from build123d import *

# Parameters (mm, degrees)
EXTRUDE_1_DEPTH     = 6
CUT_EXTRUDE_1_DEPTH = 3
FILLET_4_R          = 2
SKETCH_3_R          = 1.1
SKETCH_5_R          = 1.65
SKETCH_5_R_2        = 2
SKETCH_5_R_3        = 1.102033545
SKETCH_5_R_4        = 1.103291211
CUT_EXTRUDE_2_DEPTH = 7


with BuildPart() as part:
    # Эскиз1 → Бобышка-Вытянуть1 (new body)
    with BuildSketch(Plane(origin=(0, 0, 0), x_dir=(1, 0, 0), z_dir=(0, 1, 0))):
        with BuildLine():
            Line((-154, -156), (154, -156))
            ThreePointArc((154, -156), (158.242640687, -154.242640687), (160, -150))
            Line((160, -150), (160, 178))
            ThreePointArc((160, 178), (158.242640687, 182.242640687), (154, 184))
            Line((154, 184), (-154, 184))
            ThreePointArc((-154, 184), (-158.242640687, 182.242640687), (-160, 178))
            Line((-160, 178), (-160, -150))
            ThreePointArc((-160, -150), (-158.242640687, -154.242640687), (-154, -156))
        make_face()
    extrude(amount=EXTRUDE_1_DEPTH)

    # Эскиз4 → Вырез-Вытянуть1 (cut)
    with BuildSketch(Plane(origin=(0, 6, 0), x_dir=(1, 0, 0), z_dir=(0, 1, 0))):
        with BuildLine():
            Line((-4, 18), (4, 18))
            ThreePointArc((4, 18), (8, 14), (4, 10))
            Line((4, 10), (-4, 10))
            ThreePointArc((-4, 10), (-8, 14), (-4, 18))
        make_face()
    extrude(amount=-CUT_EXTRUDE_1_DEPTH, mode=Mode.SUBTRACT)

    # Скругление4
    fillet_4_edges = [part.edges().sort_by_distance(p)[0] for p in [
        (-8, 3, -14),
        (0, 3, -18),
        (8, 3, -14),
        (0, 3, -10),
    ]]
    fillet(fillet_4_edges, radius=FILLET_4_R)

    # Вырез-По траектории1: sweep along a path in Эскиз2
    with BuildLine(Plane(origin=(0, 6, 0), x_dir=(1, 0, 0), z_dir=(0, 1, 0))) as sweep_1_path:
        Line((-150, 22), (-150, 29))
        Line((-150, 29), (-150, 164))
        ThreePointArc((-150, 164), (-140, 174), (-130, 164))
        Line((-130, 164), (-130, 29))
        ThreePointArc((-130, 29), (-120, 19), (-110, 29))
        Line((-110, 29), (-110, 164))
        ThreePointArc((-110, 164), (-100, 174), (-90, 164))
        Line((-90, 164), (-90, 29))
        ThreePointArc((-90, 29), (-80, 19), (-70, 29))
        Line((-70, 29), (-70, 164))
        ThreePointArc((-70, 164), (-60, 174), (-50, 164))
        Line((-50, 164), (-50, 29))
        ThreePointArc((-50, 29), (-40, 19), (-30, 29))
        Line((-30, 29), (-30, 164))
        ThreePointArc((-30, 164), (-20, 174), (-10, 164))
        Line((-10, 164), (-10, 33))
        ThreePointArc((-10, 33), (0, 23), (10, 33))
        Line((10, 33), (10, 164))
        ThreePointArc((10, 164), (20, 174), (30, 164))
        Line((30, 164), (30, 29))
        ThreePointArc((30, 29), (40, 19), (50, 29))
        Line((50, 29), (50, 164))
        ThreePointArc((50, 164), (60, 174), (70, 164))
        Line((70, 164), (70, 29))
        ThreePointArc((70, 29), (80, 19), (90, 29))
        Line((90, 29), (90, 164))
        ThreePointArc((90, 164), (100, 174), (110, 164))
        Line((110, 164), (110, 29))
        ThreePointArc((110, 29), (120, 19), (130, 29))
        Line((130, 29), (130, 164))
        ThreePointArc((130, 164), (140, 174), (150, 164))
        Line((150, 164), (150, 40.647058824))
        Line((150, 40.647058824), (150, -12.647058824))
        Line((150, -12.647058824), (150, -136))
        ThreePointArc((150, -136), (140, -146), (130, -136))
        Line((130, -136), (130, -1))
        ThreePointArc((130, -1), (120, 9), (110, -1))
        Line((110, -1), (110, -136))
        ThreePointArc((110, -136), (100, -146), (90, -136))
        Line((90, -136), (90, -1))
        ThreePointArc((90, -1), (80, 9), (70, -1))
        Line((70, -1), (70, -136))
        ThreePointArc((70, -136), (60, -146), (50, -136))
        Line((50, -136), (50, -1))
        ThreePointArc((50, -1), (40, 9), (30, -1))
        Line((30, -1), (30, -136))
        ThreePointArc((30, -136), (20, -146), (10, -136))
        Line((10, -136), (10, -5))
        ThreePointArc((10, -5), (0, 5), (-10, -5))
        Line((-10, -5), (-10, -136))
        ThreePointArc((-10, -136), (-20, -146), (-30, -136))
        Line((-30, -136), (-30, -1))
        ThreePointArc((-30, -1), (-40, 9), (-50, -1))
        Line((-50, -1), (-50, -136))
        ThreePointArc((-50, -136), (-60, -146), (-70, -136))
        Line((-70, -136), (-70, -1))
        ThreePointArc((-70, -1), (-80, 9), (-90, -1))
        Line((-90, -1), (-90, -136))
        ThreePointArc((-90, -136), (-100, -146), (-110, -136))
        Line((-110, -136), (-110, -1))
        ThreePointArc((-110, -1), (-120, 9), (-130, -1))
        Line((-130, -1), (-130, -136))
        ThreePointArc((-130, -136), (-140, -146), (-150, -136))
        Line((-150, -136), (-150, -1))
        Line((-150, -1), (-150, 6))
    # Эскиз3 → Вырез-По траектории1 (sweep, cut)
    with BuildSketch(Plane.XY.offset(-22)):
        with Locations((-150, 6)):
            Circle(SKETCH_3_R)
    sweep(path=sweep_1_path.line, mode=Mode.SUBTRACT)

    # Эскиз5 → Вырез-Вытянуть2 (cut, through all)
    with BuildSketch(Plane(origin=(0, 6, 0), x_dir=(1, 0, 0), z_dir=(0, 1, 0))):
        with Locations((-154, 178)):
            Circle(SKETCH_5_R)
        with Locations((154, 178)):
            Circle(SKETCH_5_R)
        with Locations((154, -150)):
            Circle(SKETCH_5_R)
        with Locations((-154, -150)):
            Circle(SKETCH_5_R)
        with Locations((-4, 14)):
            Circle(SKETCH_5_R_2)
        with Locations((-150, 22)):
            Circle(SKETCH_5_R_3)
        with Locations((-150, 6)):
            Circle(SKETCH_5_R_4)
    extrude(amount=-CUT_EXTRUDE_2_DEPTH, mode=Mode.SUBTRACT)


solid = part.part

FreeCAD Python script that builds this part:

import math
import FreeCAD as App
import Part
import Sketcher
from FreeCAD import Vector


def edges_at(feature, points):
    """Names of the edges that pass closest to the given points."""
    edges = feature.Shape.Edges
    near = lambda p: min(range(len(edges)), key=lambda i: edges[i].distToShape(Part.Vertex(*p))[0])
    return sorted({f"Edge{near(p) + 1}" for p in points})

doc = App.newDocument("Part")
body = doc.addObject("PartDesign::Body", "Body")

# Sketch on XZ plane
sketch1 = body.newObject("Sketcher::SketchObject", "Sketch")
sketch1.AttachmentSupport = (doc.getObject("XZ_Plane"), [""])
sketch1.MapMode = "FlatFace"
sketch1.addGeometry(Part.LineSegment(Vector(-154, 156, 0), Vector(154, 156, 0)), False)
sketch1.addGeometry(Part.ArcOfCircle(Part.Circle(Vector(154, 150, 0), Vector(0, 0, 1), 6), math.radians(0), math.radians(90)), False)
sketch1.addGeometry(Part.LineSegment(Vector(160, 150, 0), Vector(160, -178, 0)), False)
sketch1.addGeometry(Part.ArcOfCircle(Part.Circle(Vector(154, -178, 0), Vector(0, 0, 1), 6), math.radians(-90), math.radians(0)), False)
sketch1.addGeometry(Part.LineSegment(Vector(154, -184, 0), Vector(-154, -184, 0)), False)
sketch1.addGeometry(Part.ArcOfCircle(Part.Circle(Vector(-154, -178, 0), Vector(0, 0, 1), 6), math.radians(180), math.radians(270)), False)
sketch1.addGeometry(Part.LineSegment(Vector(-160, -178, 0), Vector(-160, 150, 0)), False)
sketch1.addGeometry(Part.ArcOfCircle(Part.Circle(Vector(-154, 150, 0), Vector(0, 0, 1), 6), math.radians(90), math.radians(180)), False)
sketch1.addConstraint(Sketcher.Constraint("Tangent", 0, 2, 1, 2))
sketch1.addConstraint(Sketcher.Constraint("Tangent", 1, 1, 2, 1))
sketch1.addConstraint(Sketcher.Constraint("Tangent", 2, 2, 3, 2))
sketch1.addConstraint(Sketcher.Constraint("Tangent", 3, 1, 4, 1))
sketch1.addConstraint(Sketcher.Constraint("Tangent", 4, 2, 5, 2))
sketch1.addConstraint(Sketcher.Constraint("Tangent", 5, 1, 6, 1))
sketch1.addConstraint(Sketcher.Constraint("Tangent", 6, 2, 7, 2))
sketch1.addConstraint(Sketcher.Constraint("Tangent", 7, 1, 0, 1))
sketch1.addConstraint(Sketcher.Constraint("Horizontal", 0))
sketch1.addConstraint(Sketcher.Constraint("Vertical", 2))
sketch1.addConstraint(Sketcher.Constraint("Horizontal", 4))
sketch1.addConstraint(Sketcher.Constraint("Vertical", 6))
sketch1.addConstraint(Sketcher.Constraint("Equal", 1, 3))
sketch1.addConstraint(Sketcher.Constraint("Equal", 3, 5))
sketch1.addConstraint(Sketcher.Constraint("Equal", 5, 7))
sketch1.addConstraint(Sketcher.Constraint("Radius", 1, 6.0))
sketch1.addConstraint(Sketcher.Constraint("DistanceX", 0, 1, 0, 2, 308.0))
sketch1.addConstraint(Sketcher.Constraint("DistanceY", 2, 2, 2, 1, 328.0))
sketch1.addConstraint(Sketcher.Constraint("DistanceX", -1, 1, 1, 3, 154.0))
sketch1.addConstraint(Sketcher.Constraint("DistanceY", -1, 1, 1, 3, 150.0))
pad1 = body.newObject("PartDesign::Pad", "Pad")
pad1.Profile = sketch1
pad1.Length = 6
pad1.Reversed = True

# Sketch on XZ plane
sketch2 = body.newObject("Sketcher::SketchObject", "Sketch001")
sketch2.AttachmentSupport = (doc.getObject("XZ_Plane"), [""])
sketch2.MapMode = "FlatFace"
sketch2.AttachmentOffset = App.Placement(Vector(0, 0, -6), App.Rotation())
sketch2.addGeometry(Part.LineSegment(Vector(4, -18, 0), Vector(-4, -18, 0)), False)
sketch2.addGeometry(Part.ArcOfCircle(Part.Circle(Vector(-4, -14, 0), Vector(0, 0, 1), 4), math.radians(90), math.radians(270)), False)
sketch2.addGeometry(Part.LineSegment(Vector(-4, -10, 0), Vector(4, -10, 0)), False)
sketch2.addGeometry(Part.ArcOfCircle(Part.Circle(Vector(4, -14, 0), Vector(0, 0, 1), 4), math.radians(-90), math.radians(90)), False)
sketch2.addConstraint(Sketcher.Constraint("Tangent", 0, 2, 1, 2))
sketch2.addConstraint(Sketcher.Constraint("Tangent", 1, 1, 2, 1))
sketch2.addConstraint(Sketcher.Constraint("Tangent", 2, 2, 3, 2))
sketch2.addConstraint(Sketcher.Constraint("Tangent", 3, 1, 0, 1))
sketch2.addConstraint(Sketcher.Constraint("Horizontal", 0))
sketch2.addConstraint(Sketcher.Constraint("Horizontal", 2))
sketch2.addConstraint(Sketcher.Constraint("Radius", 1, 4.0))
sketch2.addConstraint(Sketcher.Constraint("DistanceX", 0, 2, 0, 1, 8.0))
sketch2.addConstraint(Sketcher.Constraint("DistanceX", 1, 3, -1, 1, 4.0))
sketch2.addConstraint(Sketcher.Constraint("DistanceY", 1, 3, -1, 1, 14.0))
pocket1 = body.newObject("PartDesign::Pocket", "Pocket")
pocket1.Profile = sketch2
pocket1.Length = 3
pocket1.Reversed = True
doc.recompute()

fillet = body.newObject("PartDesign::Fillet", "Fillet")
fillet.Base = (pocket1, edges_at(pocket1, [
    (-8, 3, -14),
    (0, 3, -18),
    (8, 3, -14),
    (0, 3, -10),
]))
fillet.Radius = 2

# Sketch on XY plane
sketch3 = body.newObject("Sketcher::SketchObject", "Sketch002")
sketch3.AttachmentSupport = (doc.getObject("XY_Plane"), [""])
sketch3.MapMode = "FlatFace"
sketch3.AttachmentOffset = App.Placement(Vector(0, 0, -22), App.Rotation())
sketch3.addGeometry(Part.Circle(Vector(-150, 6, 0), Vector(0, 0, 1), 1.1), False)
sketch3.addConstraint(Sketcher.Constraint("Diameter", 0, 2.2))
sketch3.addConstraint(Sketcher.Constraint("DistanceX", 0, 3, -1, 1, 150.0))
sketch3.addConstraint(Sketcher.Constraint("DistanceY", -1, 1, 0, 3, 6.0))

# Sketch on XZ plane
sketch4 = body.newObject("Sketcher::SketchObject", "Sketch003")
sketch4.AttachmentSupport = (doc.getObject("XZ_Plane"), [""])
sketch4.MapMode = "FlatFace"
sketch4.AttachmentOffset = App.Placement(Vector(0, 0, -6), App.Rotation())
sketch4.addGeometry(Part.LineSegment(Vector(-150, -22, 0), Vector(-150, -164, 0)), False)
sketch4.addGeometry(Part.ArcOfCircle(Part.Circle(Vector(-140, -164, 0), Vector(0, 0, 1), 10), math.radians(180), math.radians(360)), False)
sketch4.addGeometry(Part.LineSegment(Vector(-130, -164, 0), Vector(-130, -29, 0)), False)
sketch4.addGeometry(Part.ArcOfCircle(Part.Circle(Vector(-120, -29, 0), Vector(0, 0, 1), 10), math.radians(0), math.radians(180)), False)
sketch4.addGeometry(Part.LineSegment(Vector(-110, -29, 0), Vector(-110, -164, 0)), False)
sketch4.addGeometry(Part.ArcOfCircle(Part.Circle(Vector(-100, -164, 0), Vector(0, 0, 1), 10), math.radians(180), math.radians(360)), False)
sketch4.addGeometry(Part.LineSegment(Vector(-90, -164, 0), Vector(-90, -29, 0)), False)
sketch4.addGeometry(Part.ArcOfCircle(Part.Circle(Vector(-80, -29, 0), Vector(0, 0, 1), 10), math.radians(0), math.radians(180)), False)
sketch4.addGeometry(Part.LineSegment(Vector(-70, -29, 0), Vector(-70, -164, 0)), False)
sketch4.addGeometry(Part.ArcOfCircle(Part.Circle(Vector(-60, -164, 0), Vector(0, 0, 1), 10), math.radians(180), math.radians(360)), False)
sketch4.addGeometry(Part.LineSegment(Vector(-50, -164, 0), Vector(-50, -29, 0)), False)
sketch4.addGeometry(Part.ArcOfCircle(Part.Circle(Vector(-40, -29, 0), Vector(0, 0, 1), 10), math.radians(0), math.radians(180)), False)
sketch4.addGeometry(Part.LineSegment(Vector(-30, -29, 0), Vector(-30, -164, 0)), False)
sketch4.addGeometry(Part.ArcOfCircle(Part.Circle(Vector(-20, -164, 0), Vector(0, 0, 1), 10), math.radians(180), math.radians(360)), False)
sketch4.addGeometry(Part.LineSegment(Vector(-10, -164, 0), Vector(-10, -33, 0)), False)
sketch4.addGeometry(Part.ArcOfCircle(Part.Circle(Vector(0, -33, 0), Vector(0, 0, 1), 10), math.radians(0), math.radians(180)), False)
sketch4.addGeometry(Part.LineSegment(Vector(10, -33, 0), Vector(10, -164, 0)), False)
sketch4.addGeometry(Part.ArcOfCircle(Part.Circle(Vector(20, -164, 0), Vector(0, 0, 1), 10), math.radians(180), math.radians(360)), False)
sketch4.addGeometry(Part.LineSegment(Vector(30, -164, 0), Vector(30, -29, 0)), False)
sketch4.addGeometry(Part.ArcOfCircle(Part.Circle(Vector(40, -29, 0), Vector(0, 0, 1), 10), math.radians(0), math.radians(180)), False)
sketch4.addGeometry(Part.LineSegment(Vector(50, -29, 0), Vector(50, -164, 0)), False)
sketch4.addGeometry(Part.ArcOfCircle(Part.Circle(Vector(60, -164, 0), Vector(0, 0, 1), 10), math.radians(180), math.radians(360)), False)
sketch4.addGeometry(Part.LineSegment(Vector(70, -164, 0), Vector(70, -29, 0)), False)
sketch4.addGeometry(Part.ArcOfCircle(Part.Circle(Vector(80, -29, 0), Vector(0, 0, 1), 10), math.radians(0), math.radians(180)), False)
sketch4.addGeometry(Part.LineSegment(Vector(90, -29, 0), Vector(90, -164, 0)), False)
sketch4.addGeometry(Part.ArcOfCircle(Part.Circle(Vector(100, -164, 0), Vector(0, 0, 1), 10), math.radians(180), math.radians(360)), False)
sketch4.addGeometry(Part.LineSegment(Vector(110, -164, 0), Vector(110, -29, 0)), False)
sketch4.addGeometry(Part.ArcOfCircle(Part.Circle(Vector(120, -29, 0), Vector(0, 0, 1), 10), math.radians(0), math.radians(180)), False)
sketch4.addGeometry(Part.LineSegment(Vector(130, -29, 0), Vector(130, -164, 0)), False)
sketch4.addGeometry(Part.ArcOfCircle(Part.Circle(Vector(140, -164, 0), Vector(0, 0, 1), 10), math.radians(180), math.radians(360)), False)
sketch4.addGeometry(Part.LineSegment(Vector(150, -164, 0), Vector(150, 136, 0)), False)
sketch4.addGeometry(Part.ArcOfCircle(Part.Circle(Vector(140, 136, 0), Vector(0, 0, 1), 10), math.radians(0), math.radians(180)), False)
sketch4.addGeometry(Part.LineSegment(Vector(130, 136, 0), Vector(130, 1, 0)), False)
sketch4.addGeometry(Part.ArcOfCircle(Part.Circle(Vector(120, 1, 0), Vector(0, 0, 1), 10), math.radians(180), math.radians(360)), False)
sketch4.addGeometry(Part.LineSegment(Vector(110, 1, 0), Vector(110, 136, 0)), False)
sketch4.addGeometry(Part.ArcOfCircle(Part.Circle(Vector(100, 136, 0), Vector(0, 0, 1), 10), math.radians(0), math.radians(180)), False)
sketch4.addGeometry(Part.LineSegment(Vector(90, 136, 0), Vector(90, 1, 0)), False)
sketch4.addGeometry(Part.ArcOfCircle(Part.Circle(Vector(80, 1, 0), Vector(0, 0, 1), 10), math.radians(180), math.radians(360)), False)
sketch4.addGeometry(Part.LineSegment(Vector(70, 1, 0), Vector(70, 136, 0)), False)
sketch4.addGeometry(Part.ArcOfCircle(Part.Circle(Vector(60, 136, 0), Vector(0, 0, 1), 10), math.radians(0), math.radians(180)), False)
sketch4.addGeometry(Part.LineSegment(Vector(50, 136, 0), Vector(50, 1, 0)), False)
sketch4.addGeometry(Part.ArcOfCircle(Part.Circle(Vector(40, 1, 0), Vector(0, 0, 1), 10), math.radians(180), math.radians(360)), False)
sketch4.addGeometry(Part.LineSegment(Vector(30, 1, 0), Vector(30, 136, 0)), False)
sketch4.addGeometry(Part.ArcOfCircle(Part.Circle(Vector(20, 136, 0), Vector(0, 0, 1), 10), math.radians(0), math.radians(180)), False)
sketch4.addGeometry(Part.LineSegment(Vector(10, 136, 0), Vector(10, 5, 0)), False)
sketch4.addGeometry(Part.ArcOfCircle(Part.Circle(Vector(0, 5, 0), Vector(0, 0, 1), 10), math.radians(180), math.radians(360)), False)
sketch4.addGeometry(Part.LineSegment(Vector(-10, 5, 0), Vector(-10, 136, 0)), False)
sketch4.addGeometry(Part.ArcOfCircle(Part.Circle(Vector(-20, 136, 0), Vector(0, 0, 1), 10), math.radians(0), math.radians(180)), False)
sketch4.addGeometry(Part.LineSegment(Vector(-30, 136, 0), Vector(-30, 1, 0)), False)
sketch4.addGeometry(Part.ArcOfCircle(Part.Circle(Vector(-40, 1, 0), Vector(0, 0, 1), 10), math.radians(180), math.radians(360)), False)
sketch4.addGeometry(Part.LineSegment(Vector(-50, 1, 0), Vector(-50, 136, 0)), False)
sketch4.addGeometry(Part.ArcOfCircle(Part.Circle(Vector(-60, 136, 0), Vector(0, 0, 1), 10), math.radians(0), math.radians(180)), False)
sketch4.addGeometry(Part.LineSegment(Vector(-70, 136, 0), Vector(-70, 1, 0)), False)
sketch4.addGeometry(Part.ArcOfCircle(Part.Circle(Vector(-80, 1, 0), Vector(0, 0, 1), 10), math.radians(180), math.radians(360)), False)
sketch4.addGeometry(Part.LineSegment(Vector(-90, 1, 0), Vector(-90, 136, 0)), False)
sketch4.addGeometry(Part.ArcOfCircle(Part.Circle(Vector(-100, 136, 0), Vector(0, 0, 1), 10), math.radians(0), math.radians(180)), False)
sketch4.addGeometry(Part.LineSegment(Vector(-110, 136, 0), Vector(-110, 1, 0)), False)
sketch4.addGeometry(Part.ArcOfCircle(Part.Circle(Vector(-120, 1, 0), Vector(0, 0, 1), 10), math.radians(180), math.radians(360)), False)
sketch4.addGeometry(Part.LineSegment(Vector(-130, 1, 0), Vector(-130, 136, 0)), False)
sketch4.addGeometry(Part.ArcOfCircle(Part.Circle(Vector(-140, 136, 0), Vector(0, 0, 1), 10), math.radians(0), math.radians(180)), False)
sketch4.addGeometry(Part.LineSegment(Vector(-150, 136, 0), Vector(-150, -6, 0)), False)
sketch4.addConstraint(Sketcher.Constraint("Tangent", 0, 2, 1, 1))
sketch4.addConstraint(Sketcher.Constraint("Tangent", 1, 2, 2, 1))
sketch4.addConstraint(Sketcher.Constraint("Tangent", 2, 2, 3, 2))
sketch4.addConstraint(Sketcher.Constraint("Tangent", 3, 1, 4, 1))
sketch4.addConstraint(Sketcher.Constraint("Tangent", 4, 2, 5, 1))
sketch4.addConstraint(Sketcher.Constraint("Tangent", 5, 2, 6, 1))
sketch4.addConstraint(Sketcher.Constraint("Tangent", 6, 2, 7, 2))
sketch4.addConstraint(Sketcher.Constraint("Tangent", 7, 1, 8, 1))
sketch4.addConstraint(Sketcher.Constraint("Tangent", 8, 2, 9, 1))
sketch4.addConstraint(Sketcher.Constraint("Tangent", 9, 2, 10, 1))
sketch4.addConstraint(Sketcher.Constraint("Tangent", 10, 2, 11, 2))
sketch4.addConstraint(Sketcher.Constraint("Tangent", 11, 1, 12, 1))
sketch4.addConstraint(Sketcher.Constraint("Tangent", 12, 2, 13, 1))
sketch4.addConstraint(Sketcher.Constraint("Tangent", 13, 2, 14, 1))
sketch4.addConstraint(Sketcher.Constraint("Tangent", 14, 2, 15, 2))
sketch4.addConstraint(Sketcher.Constraint("Tangent", 15, 1, 16, 1))
sketch4.addConstraint(Sketcher.Constraint("Tangent", 16, 2, 17, 1))
sketch4.addConstraint(Sketcher.Constraint("Tangent", 17, 2, 18, 1))
sketch4.addConstraint(Sketcher.Constraint("Tangent", 18, 2, 19, 2))
sketch4.addConstraint(Sketcher.Constraint("Tangent", 19, 1, 20, 1))
sketch4.addConstraint(Sketcher.Constraint("Tangent", 20, 2, 21, 1))
sketch4.addConstraint(Sketcher.Constraint("Tangent", 21, 2, 22, 1))
sketch4.addConstraint(Sketcher.Constraint("Tangent", 22, 2, 23, 2))
sketch4.addConstraint(Sketcher.Constraint("Tangent", 23, 1, 24, 1))
sketch4.addConstraint(Sketcher.Constraint("Tangent", 24, 2, 25, 1))
sketch4.addConstraint(Sketcher.Constraint("Tangent", 25, 2, 26, 1))
sketch4.addConstraint(Sketcher.Constraint("Tangent", 26, 2, 27, 2))
sketch4.addConstraint(Sketcher.Constraint("Tangent", 27, 1, 28, 1))
sketch4.addConstraint(Sketcher.Constraint("Tangent", 28, 2, 29, 1))
sketch4.addConstraint(Sketcher.Constraint("Tangent", 29, 2, 30, 1))
sketch4.addConstraint(Sketcher.Constraint("Tangent", 30, 2, 31, 1))
sketch4.addConstraint(Sketcher.Constraint("Tangent", 31, 2, 32, 1))
sketch4.addConstraint(Sketcher.Constraint("Tangent", 32, 2, 33, 2))
sketch4.addConstraint(Sketcher.Constraint("Tangent", 33, 1, 34, 1))
sketch4.addConstraint(Sketcher.Constraint("Tangent", 34, 2, 35, 1))
sketch4.addConstraint(Sketcher.Constraint("Tangent", 35, 2, 36, 1))
sketch4.addConstraint(Sketcher.Constraint("Tangent", 36, 2, 37, 2))
sketch4.addConstraint(Sketcher.Constraint("Tangent", 37, 1, 38, 1))
sketch4.addConstraint(Sketcher.Constraint("Tangent", 38, 2, 39, 1))
sketch4.addConstraint(Sketcher.Constraint("Tangent", 39, 2, 40, 1))
sketch4.addConstraint(Sketcher.Constraint("Tangent", 40, 2, 41, 2))
sketch4.addConstraint(Sketcher.Constraint("Tangent", 41, 1, 42, 1))
sketch4.addConstraint(Sketcher.Constraint("Tangent", 42, 2, 43, 1))
sketch4.addConstraint(Sketcher.Constraint("Tangent", 43, 2, 44, 1))
sketch4.addConstraint(Sketcher.Constraint("Tangent", 44, 2, 45, 2))
sketch4.addConstraint(Sketcher.Constraint("Tangent", 45, 1, 46, 1))
sketch4.addConstraint(Sketcher.Constraint("Tangent", 46, 2, 47, 1))
sketch4.addConstraint(Sketcher.Constraint("Tangent", 47, 2, 48, 1))
sketch4.addConstraint(Sketcher.Constraint("Tangent", 48, 2, 49, 2))
sketch4.addConstraint(Sketcher.Constraint("Tangent", 49, 1, 50, 1))
sketch4.addConstraint(Sketcher.Constraint("Tangent", 50, 2, 51, 1))
sketch4.addConstraint(Sketcher.Constraint("Tangent", 51, 2, 52, 1))
sketch4.addConstraint(Sketcher.Constraint("Tangent", 52, 2, 53, 2))
sketch4.addConstraint(Sketcher.Constraint("Tangent", 53, 1, 54, 1))
sketch4.addConstraint(Sketcher.Constraint("Tangent", 54, 2, 55, 1))
sketch4.addConstraint(Sketcher.Constraint("Tangent", 55, 2, 56, 1))
sketch4.addConstraint(Sketcher.Constraint("Tangent", 56, 2, 57, 2))
sketch4.addConstraint(Sketcher.Constraint("Tangent", 57, 1, 58, 1))
sketch4.addConstraint(Sketcher.Constraint("Tangent", 58, 2, 59, 1))
sketch4.addConstraint(Sketcher.Constraint("Tangent", 59, 2, 60, 1))
sketch4.addConstraint(Sketcher.Constraint("Vertical", 0))
sketch4.addConstraint(Sketcher.Constraint("Vertical", 2))
sketch4.addConstraint(Sketcher.Constraint("Vertical", 4))
sketch4.addConstraint(Sketcher.Constraint("Vertical", 6))
sketch4.addConstraint(Sketcher.Constraint("Vertical", 8))
sketch4.addConstraint(Sketcher.Constraint("Vertical", 10))
sketch4.addConstraint(Sketcher.Constraint("Vertical", 12))
sketch4.addConstraint(Sketcher.Constraint("Vertical", 14))
sketch4.addConstraint(Sketcher.Constraint("Vertical", 16))
sketch4.addConstraint(Sketcher.Constraint("Vertical", 18))
sketch4.addConstraint(Sketcher.Constraint("Vertical", 20))
sketch4.addConstraint(Sketcher.Constraint("Vertical", 22))
sketch4.addConstraint(Sketcher.Constraint("Vertical", 24))
sketch4.addConstraint(Sketcher.Constraint("Vertical", 26))
sketch4.addConstraint(Sketcher.Constraint("Vertical", 28))
sketch4.addConstraint(Sketcher.Constraint("Vertical", 30))
sketch4.addConstraint(Sketcher.Constraint("Vertical", 32))
sketch4.addConstraint(Sketcher.Constraint("Vertical", 34))
sketch4.addConstraint(Sketcher.Constraint("Vertical", 36))
sketch4.addConstraint(Sketcher.Constraint("Vertical", 38))
sketch4.addConstraint(Sketcher.Constraint("Vertical", 40))
sketch4.addConstraint(Sketcher.Constraint("Vertical", 42))
sketch4.addConstraint(Sketcher.Constraint("Vertical", 44))
sketch4.addConstraint(Sketcher.Constraint("Vertical", 46))
sketch4.addConstraint(Sketcher.Constraint("Vertical", 48))
sketch4.addConstraint(Sketcher.Constraint("Vertical", 50))
sketch4.addConstraint(Sketcher.Constraint("Vertical", 52))
sketch4.addConstraint(Sketcher.Constraint("Vertical", 54))
sketch4.addConstraint(Sketcher.Constraint("Vertical", 56))
sketch4.addConstraint(Sketcher.Constraint("Vertical", 58))
sketch4.addConstraint(Sketcher.Constraint("Vertical", 60))
sketch4.addConstraint(Sketcher.Constraint("Equal", 1, 3))
sketch4.addConstraint(Sketcher.Constraint("Equal", 3, 5))
sketch4.addConstraint(Sketcher.Constraint("Equal", 5, 7))
sketch4.addConstraint(Sketcher.Constraint("Equal", 7, 9))
sketch4.addConstraint(Sketcher.Constraint("Equal", 9, 11))
sketch4.addConstraint(Sketcher.Constraint("Equal", 11, 13))
sketch4.addConstraint(Sketcher.Constraint("Equal", 13, 15))
sketch4.addConstraint(Sketcher.Constraint("Equal", 15, 17))
sketch4.addConstraint(Sketcher.Constraint("Equal", 17, 19))
sketch4.addConstraint(Sketcher.Constraint("Equal", 19, 21))
sketch4.addConstraint(Sketcher.Constraint("Equal", 21, 23))
sketch4.addConstraint(Sketcher.Constraint("Equal", 23, 25))
sketch4.addConstraint(Sketcher.Constraint("Equal", 25, 27))
sketch4.addConstraint(Sketcher.Constraint("Equal", 27, 29))
sketch4.addConstraint(Sketcher.Constraint("Equal", 29, 31))
sketch4.addConstraint(Sketcher.Constraint("Equal", 31, 33))
sketch4.addConstraint(Sketcher.Constraint("Equal", 33, 35))
sketch4.addConstraint(Sketcher.Constraint("Equal", 35, 37))
sketch4.addConstraint(Sketcher.Constraint("Equal", 37, 39))
sketch4.addConstraint(Sketcher.Constraint("Equal", 39, 41))
sketch4.addConstraint(Sketcher.Constraint("Equal", 41, 43))
sketch4.addConstraint(Sketcher.Constraint("Equal", 43, 45))
sketch4.addConstraint(Sketcher.Constraint("Equal", 45, 47))
sketch4.addConstraint(Sketcher.Constraint("Equal", 47, 49))
sketch4.addConstraint(Sketcher.Constraint("Equal", 49, 51))
sketch4.addConstraint(Sketcher.Constraint("Equal", 51, 53))
sketch4.addConstraint(Sketcher.Constraint("Equal", 53, 55))
sketch4.addConstraint(Sketcher.Constraint("Equal", 55, 57))
sketch4.addConstraint(Sketcher.Constraint("Equal", 57, 59))
sketch4.addConstraint(Sketcher.Constraint("Symmetric", 13, 3, 17, 3, -2))
sketch4.addConstraint(Sketcher.Constraint("Horizontal", 1, 3, 5, 3))
sketch4.addConstraint(Sketcher.Constraint("Horizontal", 3, 3, 7, 3))
sketch4.addConstraint(Sketcher.Constraint("Horizontal", 5, 3, 9, 3))
sketch4.addConstraint(Sketcher.Constraint("Horizontal", 7, 3, 11, 3))
sketch4.addConstraint(Sketcher.Constraint("Horizontal", 9, 3, 13, 3))
sketch4.addConstraint(Sketcher.Constraint("Horizontal", 11, 3, 19, 3))
sketch4.addConstraint(Sketcher.Constraint("Horizontal", 17, 3, 21, 3))
sketch4.addConstraint(Sketcher.Constraint("Horizontal", 19, 3, 23, 3))
sketch4.addConstraint(Sketcher.Constraint("Horizontal", 21, 3, 25, 3))
sketch4.addConstraint(Sketcher.Constraint("Horizontal", 23, 3, 27, 3))
sketch4.addConstraint(Sketcher.Constraint("Horizontal", 25, 3, 29, 3))
sketch4.addConstraint(Sketcher.Constraint("Horizontal", 31, 3, 35, 3))
sketch4.addConstraint(Sketcher.Constraint("Horizontal", 33, 3, 37, 3))
sketch4.addConstraint(Sketcher.Constraint("Horizontal", 35, 3, 39, 3))
sketch4.addConstraint(Sketcher.Constraint("Horizontal", 37, 3, 41, 3))
sketch4.addConstraint(Sketcher.Constraint("Horizontal", 39, 3, 43, 3))
sketch4.addConstraint(Sketcher.Constraint("Horizontal", 43, 3, 47, 3))
sketch4.addConstraint(Sketcher.Constraint("Horizontal", 41, 3, 49, 3))
sketch4.addConstraint(Sketcher.Constraint("Horizontal", 47, 3, 51, 3))
sketch4.addConstraint(Sketcher.Constraint("Horizontal", 49, 3, 53, 3))
sketch4.addConstraint(Sketcher.Constraint("Horizontal", 51, 3, 55, 3))
sketch4.addConstraint(Sketcher.Constraint("Horizontal", 53, 3, 57, 3))
sketch4.addConstraint(Sketcher.Constraint("Horizontal", 55, 3, 59, 3))
sketch4.addConstraint(Sketcher.Constraint("Equal", 28, 32))
sketch4.addConstraint(Sketcher.Constraint("Equal", 16, 44))
sketch4.addConstraint(Sketcher.Constraint("Equal", 0, 60))
sketch4.addConstraint(Sketcher.Constraint("Radius", 1, 10.0))
sketch4.addConstraint(Sketcher.Constraint("DistanceY", 0, 2, 0, 1, 142.0))
sketch4.addConstraint(Sketcher.Constraint("DistanceY", 2, 1, 2, 2, 135.0))
sketch4.addConstraint(Sketcher.Constraint("DistanceY", 14, 1, 14, 2, 131.0))
sketch4.addConstraint(Sketcher.Constraint("DistanceY", 30, 1, 30, 2, 300.0))
sketch4.addConstraint(Sketcher.Constraint("DistanceY", 1, 3, -1, 1, 164.0))
doc.recompute()

subtractivepipe = body.newObject("PartDesign::SubtractivePipe", "SubtractivePipe")
subtractivepipe.Profile = sketch3
subtractivepipe.Spine = (sketch4, ["Edge1", "Edge2", "Edge3", "Edge4", "Edge5", "Edge6", "Edge7", "Edge8", "Edge9", "Edge10", "Edge11", "Edge12", "Edge13", "Edge14", "Edge15", "Edge16", "Edge17", "Edge18", "Edge19", "Edge20", "Edge21", "Edge22", "Edge23", "Edge24", "Edge25", "Edge26", "Edge27", "Edge28", "Edge29", "Edge30", "Edge31", "Edge32", "Edge33", "Edge34", "Edge35", "Edge36", "Edge37", "Edge38", "Edge39", "Edge40", "Edge41", "Edge42", "Edge43", "Edge44", "Edge45", "Edge46", "Edge47", "Edge48", "Edge49", "Edge50", "Edge51", "Edge52", "Edge53", "Edge54", "Edge55", "Edge56", "Edge57", "Edge58", "Edge59", "Edge60", "Edge61"])

# Sketch on XZ plane
sketch5 = body.newObject("Sketcher::SketchObject", "Sketch004")
sketch5.AttachmentSupport = (doc.getObject("XZ_Plane"), [""])
sketch5.MapMode = "FlatFace"
sketch5.AttachmentOffset = App.Placement(Vector(0, 0, -6), App.Rotation())
sketch5.addGeometry(Part.Circle(Vector(-154, -178, 0), Vector(0, 0, 1), 1.65), False)
sketch5.addGeometry(Part.Circle(Vector(154, -178, 0), Vector(0, 0, 1), 1.65), False)
sketch5.addGeometry(Part.Circle(Vector(154, 150, 0), Vector(0, 0, 1), 1.65), False)
sketch5.addGeometry(Part.Circle(Vector(-154, 150, 0), Vector(0, 0, 1), 1.65), False)
sketch5.addGeometry(Part.Circle(Vector(-4, -14, 0), Vector(0, 0, 1), 2), False)
sketch5.addGeometry(Part.Circle(Vector(-150, -22, 0), Vector(0, 0, 1), 1.102034), False)
sketch5.addGeometry(Part.Circle(Vector(-150, -6, 0), Vector(0, 0, 1), 1.103291), False)
sketch5.addConstraint(Sketcher.Constraint("Equal", 0, 1))
sketch5.addConstraint(Sketcher.Constraint("Equal", 1, 2))
sketch5.addConstraint(Sketcher.Constraint("Equal", 2, 3))
sketch5.addConstraint(Sketcher.Constraint("Symmetric", 0, 3, 1, 3, -2))
sketch5.addConstraint(Sketcher.Constraint("Symmetric", 2, 3, 3, 3, -2))
sketch5.addConstraint(Sketcher.Constraint("Vertical", 1, 3, 2, 3))
sketch5.addConstraint(Sketcher.Constraint("Vertical", 5, 3, 6, 3))
sketch5.addConstraint(Sketcher.Constraint("Diameter", 4, 4.0))
sketch5.addConstraint(Sketcher.Constraint("Diameter", 0, 3.3))
sketch5.addConstraint(Sketcher.Constraint("DistanceX", 0, 3, -1, 1, 154.0))
sketch5.addConstraint(Sketcher.Constraint("DistanceY", 0, 3, -1, 1, 178.0))
sketch5.addConstraint(Sketcher.Constraint("DistanceY", -1, 1, 2, 3, 150.0))
sketch5.addConstraint(Sketcher.Constraint("DistanceX", 4, 3, -1, 1, 4.0))
sketch5.addConstraint(Sketcher.Constraint("DistanceY", 4, 3, -1, 1, 14.0))
sketch5.addConstraint(Sketcher.Constraint("DistanceX", 5, 3, -1, 1, 150.0))
sketch5.addConstraint(Sketcher.Constraint("DistanceY", 5, 3, -1, 1, 22.0))
sketch5.addConstraint(Sketcher.Constraint("DistanceY", 6, 3, -1, 1, 6.0))
sketch5.addConstraint(Sketcher.Constraint("Diameter", 5, 2.204067))
sketch5.addConstraint(Sketcher.Constraint("Diameter", 6, 2.206582))
pocket2 = body.newObject("PartDesign::Pocket", "Pocket001")
pocket2.Profile = sketch5
pocket2.Type = "ThroughAll"
pocket2.Reversed = True

doc.recompute()
